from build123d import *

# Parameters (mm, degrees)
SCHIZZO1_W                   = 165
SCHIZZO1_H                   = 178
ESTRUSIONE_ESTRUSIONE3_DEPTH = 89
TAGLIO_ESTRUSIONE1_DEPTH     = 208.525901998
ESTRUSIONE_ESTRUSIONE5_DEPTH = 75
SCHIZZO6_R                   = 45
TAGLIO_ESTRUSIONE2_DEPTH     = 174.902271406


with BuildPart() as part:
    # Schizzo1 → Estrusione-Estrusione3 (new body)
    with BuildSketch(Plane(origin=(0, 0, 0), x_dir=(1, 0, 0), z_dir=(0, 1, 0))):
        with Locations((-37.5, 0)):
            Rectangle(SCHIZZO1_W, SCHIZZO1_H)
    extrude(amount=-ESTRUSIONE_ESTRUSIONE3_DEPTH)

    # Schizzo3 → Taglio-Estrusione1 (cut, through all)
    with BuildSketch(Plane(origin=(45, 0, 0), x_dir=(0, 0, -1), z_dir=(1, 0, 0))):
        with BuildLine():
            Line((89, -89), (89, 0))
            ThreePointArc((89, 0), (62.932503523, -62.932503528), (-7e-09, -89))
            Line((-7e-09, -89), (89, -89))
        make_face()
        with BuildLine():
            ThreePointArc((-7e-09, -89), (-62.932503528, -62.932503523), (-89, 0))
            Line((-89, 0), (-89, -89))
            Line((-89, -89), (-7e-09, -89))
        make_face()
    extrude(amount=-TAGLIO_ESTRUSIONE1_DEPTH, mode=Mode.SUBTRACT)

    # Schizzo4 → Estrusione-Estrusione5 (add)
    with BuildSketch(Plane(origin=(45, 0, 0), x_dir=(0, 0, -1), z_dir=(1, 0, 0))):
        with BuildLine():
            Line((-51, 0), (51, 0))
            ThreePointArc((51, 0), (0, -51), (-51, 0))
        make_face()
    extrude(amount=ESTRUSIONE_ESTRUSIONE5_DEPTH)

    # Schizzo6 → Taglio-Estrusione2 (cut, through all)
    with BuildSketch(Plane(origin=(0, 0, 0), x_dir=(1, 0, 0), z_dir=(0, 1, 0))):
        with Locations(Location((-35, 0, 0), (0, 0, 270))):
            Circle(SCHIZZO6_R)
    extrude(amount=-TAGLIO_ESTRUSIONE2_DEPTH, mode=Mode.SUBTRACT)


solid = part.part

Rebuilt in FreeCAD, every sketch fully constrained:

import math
import FreeCAD as App
import Part
import Sketcher

doc = App.newDocument("Part")
body = doc.addObject("PartDesign::Body", "Body")

sketch1 = body.newObject("Sketcher::SketchObject", "Sketch")
sketch1.AttachmentSupport = (doc.getObject("XZ_Plane"), [""])
sketch1.MapMode = "FlatFace"
sketch1.addGeometry(Part.LineSegment(App.Vector(-120, -89, 0), App.Vector(-120, 89, 0)), False)
sketch1.addGeometry(Part.LineSegment(App.Vector(-120, 89, 0), App.Vector(45, 89, 0)), False)
sketch1.addGeometry(Part.LineSegment(App.Vector(45, 89, 0), App.Vector(45, -89, 0)), False)
sketch1.addGeometry(Part.LineSegment(App.Vector(45, -89, 0), App.Vector(-120, -89, 0)), False)
sketch1.addConstraint(Sketcher.Constraint("Coincident", 0, 2, 1, 1))
sketch1.addConstraint(Sketcher.Constraint("Coincident", 1, 2, 2, 1))
sketch1.addConstraint(Sketcher.Constraint("Coincident", 2, 2, 3, 1))
sketch1.addConstraint(Sketcher.Constraint("Coincident", 3, 2, 0, 1))
sketch1.addConstraint(Sketcher.Constraint("Vertical", 0))
sketch1.addConstraint(Sketcher.Constraint("Horizontal", 1))
sketch1.addConstraint(Sketcher.Constraint("Vertical", 2))
sketch1.addConstraint(Sketcher.Constraint("Horizontal", 3))
sketch1.addConstraint(Sketcher.Constraint("DistanceX", 1, 1, 1, 2, 165.0))
sketch1.addConstraint(Sketcher.Constraint("DistanceY", 0, 1, 0, 2, 178.0))
sketch1.addConstraint(Sketcher.Constraint("DistanceX", 0, 2, -1, 1, 120.0))
sketch1.addConstraint(Sketcher.Constraint("DistanceY", -1, 1, 0, 2, 89.0))
pad1 = body.newObject("PartDesign::Pad", "Pad")
pad1.Profile = sketch1
pad1.Length = 89

sketch2 = body.newObject("Sketcher::SketchObject", "Sketch001")
sketch2.AttachmentSupport = (doc.getObject("YZ_Plane"), [""])
sketch2.MapMode = "FlatFace"
sketch2.AttachmentOffset = App.Placement(App.Vector(0, 0, 45), App.Rotation())
sketch2.addGeometry(Part.LineSegment(App.Vector(-89, -89, 0), App.Vector(0, -89, 0)), False)
sketch2.addGeometry(Part.ArcOfCircle(Part.Circle(App.Vector(0, 0, 0), App.Vector(0, 0, 1), 89), math.radians(180), math.radians(270)), False)
sketch2.addGeometry(Part.LineSegment(App.Vector(-89, 0, 0), App.Vector(-89, -89, 0)), False)
sketch2.addGeometry(Part.ArcOfCircle(Part.Circle(App.Vector(0, 0, 0), App.Vector(0, 0, 1), 89), math.radians(90), math.radians(180)), False)
sketch2.addGeometry(Part.LineSegment(App.Vector(0, 89, 0), App.Vector(-89, 89, 0)), False)
sketch2.addGeometry(Part.LineSegment(App.Vector(-89, 89, 0), App.Vector(-89, 0, 0)), False)
sketch2.addConstraint(Sketcher.Constraint("Tangent", 0, 2, 1, 2))
sketch2.addConstraint(Sketcher.Constraint("Tangent", 1, 1, 2, 1))
sketch2.addConstraint(Sketcher.Constraint("Coincident", 2, 2, 0, 1))
sketch2.addConstraint(Sketcher.Constraint("Tangent", 3, 1, 4, 1))
sketch2.addConstraint(Sketcher.Constraint("Coincident", 4, 2, 5, 1))
sketch2.addConstraint(Sketcher.Constraint("Tangent", 5, 2, 3, 2))
sketch2.addConstraint(Sketcher.Constraint("Horizontal", 0))
sketch2.addConstraint(Sketcher.Constraint("Vertical", 2))
sketch2.addConstraint(Sketcher.Constraint("Horizontal", 4))
sketch2.addConstraint(Sketcher.Constraint("Vertical", 5))
sketch2.addConstraint(Sketcher.Constraint("Coincident", 1, 3, -1, 1))
sketch2.addConstraint(Sketcher.Constraint("Coincident", 3, 3, -1, 1))
sketch2.addConstraint(Sketcher.Constraint("Equal", 1, 3))
sketch2.addConstraint(Sketcher.Constraint("Radius", 1, 89.0))
pocket1 = body.newObject("PartDesign::Pocket", "Pocket")
pocket1.Profile = sketch2
pocket1.Type = "ThroughAll"

sketch3 = body.newObject("Sketcher::SketchObject", "Sketch002")
sketch3.AttachmentSupport = (doc.getObject("YZ_Plane"), [""])
sketch3.MapMode = "FlatFace"
sketch3.AttachmentOffset = App.Placement(App.Vector(0, 0, 45), App.Rotation())
sketch3.addGeometry(Part.LineSegment(App.Vector(0, -51, 0), App.Vector(0, 51, 0)), False)
sketch3.addGeometry(Part.ArcOfCircle(Part.Circle(App.Vector(0, 0, 0), App.Vector(0, 0, 1), 51), math.radians(90), math.radians(270)), False)
sketch3.addConstraint(Sketcher.Constraint("Coincident", 0, 1, 1, 2))
sketch3.addConstraint(Sketcher.Constraint("Coincident", 1, 1, 0, 2))
sketch3.addConstraint(Sketcher.Constraint("Vertical", 0))
sketch3.addConstraint(Sketcher.Constraint("Coincident", 1, 3, -1, 1))
sketch3.addConstraint(Sketcher.Constraint("PointOnObject", 0, 1, -2))
sketch3.addConstraint(Sketcher.Constraint("Radius", 1, 51.0))
pad2 = body.newObject("PartDesign::Pad", "Pad001")
pad2.Profile = sketch3
pad2.Length = 75

sketch4 = body.newObject("Sketcher::SketchObject", "Sketch003")
sketch4.AttachmentSupport = (doc.getObject("XZ_Plane"), [""])
sketch4.MapMode = "FlatFace"
sketch4.addGeometry(Part.Circle(App.Vector(-35, 0, 0), App.Vector(0, 0, 1), 45), False)
sketch4.addConstraint(Sketcher.Constraint("PointOnObject", 0, 3, -1))
sketch4.addConstraint(Sketcher.Constraint("Diameter", 0, 90.0))
sketch4.addConstraint(Sketcher.Constraint("DistanceX", 0, 3, -1, 1, 35.0))
pocket2 = body.newObject("PartDesign::Pocket", "Pocket001")
pocket2.Profile = sketch4
pocket2.Type = "ThroughAll"
pocket2.Reversed = True

doc.recompute()
